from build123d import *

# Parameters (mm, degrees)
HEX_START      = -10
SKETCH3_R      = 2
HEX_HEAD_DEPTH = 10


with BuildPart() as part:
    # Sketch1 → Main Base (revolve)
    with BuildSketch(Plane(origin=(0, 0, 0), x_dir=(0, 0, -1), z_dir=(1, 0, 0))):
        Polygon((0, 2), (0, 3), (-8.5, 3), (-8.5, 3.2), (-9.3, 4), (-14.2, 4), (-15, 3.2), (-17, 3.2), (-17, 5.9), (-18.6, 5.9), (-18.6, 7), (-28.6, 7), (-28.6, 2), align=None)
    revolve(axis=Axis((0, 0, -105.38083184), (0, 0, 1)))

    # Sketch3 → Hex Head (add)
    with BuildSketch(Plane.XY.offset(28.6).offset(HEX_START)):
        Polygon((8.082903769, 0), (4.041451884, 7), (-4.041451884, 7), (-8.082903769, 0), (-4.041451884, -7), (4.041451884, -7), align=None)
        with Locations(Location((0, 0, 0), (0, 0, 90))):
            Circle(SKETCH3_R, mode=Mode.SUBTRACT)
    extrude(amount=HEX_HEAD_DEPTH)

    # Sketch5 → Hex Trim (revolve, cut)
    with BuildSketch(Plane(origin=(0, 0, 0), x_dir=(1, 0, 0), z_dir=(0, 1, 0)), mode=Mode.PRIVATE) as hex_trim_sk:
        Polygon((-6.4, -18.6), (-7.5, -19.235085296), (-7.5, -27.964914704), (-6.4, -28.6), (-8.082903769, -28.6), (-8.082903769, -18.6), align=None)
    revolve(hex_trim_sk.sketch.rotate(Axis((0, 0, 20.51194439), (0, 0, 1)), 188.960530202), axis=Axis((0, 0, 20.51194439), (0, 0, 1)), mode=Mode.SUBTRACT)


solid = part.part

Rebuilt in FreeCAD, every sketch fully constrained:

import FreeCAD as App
import Part
import Sketcher

V = App.Vector
Q = App.Units.Quantity

doc = App.newDocument("Part")
body = doc.addObject("PartDesign::Body", "Body")

# Sketch on YZ plane
sketch1 = body.newObject("Sketcher::SketchObject", "Sketch")
sketch1.AttachmentSupport = (doc.getObject("YZ_Plane"), [""])
sketch1.MapMode = "FlatFace"
sketch1.addGeometry(Part.LineSegment(V(2, 0, 0), V(3, 0, 0)), False)
sketch1.addGeometry(Part.LineSegment(V(3, 0, 0), V(3, 8.5, 0)), False)
sketch1.addGeometry(Part.LineSegment(V(3, 8.5, 0), V(3.2, 8.5, 0)), False)
sketch1.addGeometry(Part.LineSegment(V(3.2, 8.5, 0), V(4, 9.3, 0)), False)
sketch1.addGeometry(Part.LineSegment(V(4, 9.3, 0), V(4, 14.2, 0)), False)
sketch1.addGeometry(Part.LineSegment(V(4, 14.2, 0), V(3.2, 15, 0)), False)
sketch1.addGeometry(Part.LineSegment(V(3.2, 15, 0), V(3.2, 17, 0)), False)
sketch1.addGeometry(Part.LineSegment(V(3.2, 17, 0), V(5.9, 17, 0)), False)
sketch1.addGeometry(Part.LineSegment(V(5.9, 17, 0), V(5.9, 18.6, 0)), False)
sketch1.addGeometry(Part.LineSegment(V(5.9, 18.6, 0), V(7, 18.6, 0)), False)
sketch1.addGeometry(Part.LineSegment(V(7, 18.6, 0), V(7, 28.6, 0)), False)
sketch1.addGeometry(Part.LineSegment(V(7, 28.6, 0), V(2, 28.6, 0)), False)
sketch1.addGeometry(Part.LineSegment(V(2, 28.6, 0), V(2, 0, 0)), False)
sketch1.addConstraint(Sketcher.Constraint("Coincident", 0, 2, 1, 1))
sketch1.addConstraint(Sketcher.Constraint("Coincident", 1, 2, 2, 1))
sketch1.addConstraint(Sketcher.Constraint("Coincident", 2, 2, 3, 1))
sketch1.addConstraint(Sketcher.Constraint("Coincident", 3, 2, 4, 1))
sketch1.addConstraint(Sketcher.Constraint("Coincident", 4, 2, 5, 1))
sketch1.addConstraint(Sketcher.Constraint("Coincident", 5, 2, 6, 1))
sketch1.addConstraint(Sketcher.Constraint("Coincident", 6, 2, 7, 1))
sketch1.addConstraint(Sketcher.Constraint("Coincident", 7, 2, 8, 1))
sketch1.addConstraint(Sketcher.Constraint("Coincident", 8, 2, 9, 1))
sketch1.addConstraint(Sketcher.Constraint("Coincident", 9, 2, 10, 1))
sketch1.addConstraint(Sketcher.Constraint("Coincident", 10, 2, 11, 1))
sketch1.addConstraint(Sketcher.Constraint("Coincident", 11, 2, 12, 1))
sketch1.addConstraint(Sketcher.Constraint("Coincident", 12, 2, 0, 1))
sketch1.addConstraint(Sketcher.Constraint("Horizontal", 0))
sketch1.addConstraint(Sketcher.Constraint("Vertical", 1))
sketch1.addConstraint(Sketcher.Constraint("Horizontal", 2))
sketch1.addConstraint(Sketcher.Constraint("Vertical", 4))
sketch1.addConstraint(Sketcher.Constraint("Vertical", 6))
sketch1.addConstraint(Sketcher.Constraint("Horizontal", 7))
sketch1.addConstraint(Sketcher.Constraint("Vertical", 8))
sketch1.addConstraint(Sketcher.Constraint("Horizontal", 9))
sketch1.addConstraint(Sketcher.Constraint("Vertical", 10))
sketch1.addConstraint(Sketcher.Constraint("Horizontal", 11))
sketch1.addConstraint(Sketcher.Constraint("Vertical", 12))
sketch1.addConstraint(Sketcher.Constraint("PointOnObject", 0, 2, -1))
sketch1.addConstraint(Sketcher.Constraint("Perpendicular", 3, 5))
sketch1.addConstraint(Sketcher.Constraint("Vertical", 2, 2, 5, 2))
sketch1.addConstraint(Sketcher.Constraint("Equal", 3, 5))
sketch1.addConstraint(Sketcher.Constraint("DistanceX", 0, 1, 0, 2, Q("1 mm")))
sketch1.addConstraint(Sketcher.Constraint("DistanceX", 11, 2, 11, 1, Q("5 mm")))
sketch1.addConstraint(Sketcher.Constraint("DistanceY", 6, 1, 6, 2, Q("2 mm")))
sketch1.addConstraint(Sketcher.Constraint("DistanceY", 10, 1, 10, 2, Q("10 mm")))
sketch1.addConstraint(Sketcher.Constraint("DistanceX", 2, 1, 2, 2, Q("0.2 mm")))
sketch1.addConstraint(Sketcher.Constraint("DistanceX", 7, 1, 7, 2, Q("2.7 mm")))
sketch1.addConstraint(Sketcher.Constraint("DistanceY", 1, 1, 1, 2, Q("8.5 mm")))
sketch1.addConstraint(Sketcher.Constraint("DistanceY", 4, 1, 4, 2, Q("4.9 mm")))
sketch1.addConstraint(Sketcher.Constraint("DistanceY", 8, 1, 8, 2, Q("1.6 mm")))
sketch1.addConstraint(Sketcher.Constraint("DistanceY", 12, 2, 12, 1, Q("28.6 mm")))
sketch1.addConstraint(Sketcher.Constraint("DistanceX", -1, 1, 0, 2, Q("3 mm")))
revolution = body.newObject("PartDesign::Revolution", "Revolution")
revolution.Profile = sketch1
revolution.ReferenceAxis = (sketch1, ["V_Axis"])
revolution.Angle = 360

# Sketch on XY plane
sketch2 = body.newObject("Sketcher::SketchObject", "Sketch001")
sketch2.AttachmentSupport = (doc.getObject("XY_Plane"), [""])
sketch2.MapMode = "FlatFace"
sketch2.AttachmentOffset = App.Placement(V(0, 0, 18.6), App.Rotation())
sketch2.addGeometry(Part.LineSegment(V(8.1, 0, 0), V(4, 7, 0)), False)
sketch2.addGeometry(Part.LineSegment(V(4, 7, 0), V(-4, 7, 0)), False)
sketch2.addGeometry(Part.LineSegment(V(-4, 7, 0), V(-8.1, 0, 0)), False)
sketch2.addGeometry(Part.LineSegment(V(-8.1, 0, 0), V(-4, -7, 0)), False)
sketch2.addGeometry(Part.LineSegment(V(-4, -7, 0), V(4, -7, 0)), False)
sketch2.addGeometry(Part.LineSegment(V(4, -7, 0), V(8.1, 0, 0)), False)
sketch2.addGeometry(Part.Circle(V(0, 0, 0), V(0, 0, 1), 2), False)
sketch2.addConstraint(Sketcher.Constraint("Coincident", 0, 2, 1, 1))
sketch2.addConstraint(Sketcher.Constraint("Coincident", 1, 2, 2, 1))
sketch2.addConstraint(Sketcher.Constraint("Coincident", 2, 2, 3, 1))
sketch2.addConstraint(Sketcher.Constraint("Coincident", 3, 2, 4, 1))
sketch2.addConstraint(Sketcher.Constraint("Coincident", 4, 2, 5, 1))
sketch2.addConstraint(Sketcher.Constraint("Coincident", 5, 2, 0, 1))
sketch2.addConstraint(Sketcher.Constraint("Horizontal", 1))
sketch2.addConstraint(Sketcher.Constraint("Horizontal", 4))
sketch2.addConstraint(Sketcher.Constraint("Coincident", 6, 3, -1, 1))
sketch2.addConstraint(Sketcher.Constraint("Symmetric", 0, 2, 3, 2, -1, 1))
sketch2.addConstraint(Sketcher.Constraint("Symmetric", 2, 2, 5, 2, -1, 1))
sketch2.addConstraint(Sketcher.Constraint("PointOnObject", 2, 2, -1))
sketch2.addConstraint(Sketcher.Constraint("Parallel", 2, 5))
sketch2.addConstraint(Sketcher.Constraint("Vertical", 1, 2, 3, 2))
sketch2.addConstraint(Sketcher.Constraint("Diameter", 6, Q("4 mm")))
sketch2.addConstraint(Sketcher.Constraint("Angle", 0, Q("120 deg")))
sketch2.addConstraint(Sketcher.Constraint("DistanceY", -1, 1, 0, 2, Q("7 mm")))
sketch2.addConstraint(Sketcher.Constraint("DistanceX", 1, 2, 1, 1, Q("8.082904 mm")))
pad1 = body.newObject("PartDesign::Pad", "Pad")
pad1.Profile = sketch2
pad1.Length = 10

# Sketch on XZ plane
sketch3 = body.newObject("Sketcher::SketchObject", "Sketch002")
sketch3.AttachmentSupport = (doc.getObject("XZ_Plane"), [""])
sketch3.MapMode = "FlatFace"
sketch3.addGeometry(Part.LineSegment(V(-7.5, 19.2, 0), V(-6.4, 18.6, 0)), False)
sketch3.addGeometry(Part.LineSegment(V(-6.4, 18.6, 0), V(-8.1, 18.6, 0)), False)
sketch3.addGeometry(Part.LineSegment(V(-8.1, 18.6, 0), V(-8.1, 28.6, 0)), False)
sketch3.addGeometry(Part.LineSegment(V(-8.1, 28.6, 0), V(-6.4, 28.6, 0)), False)
sketch3.addGeometry(Part.LineSegment(V(-6.4, 28.6, 0), V(-7.5, 28, 0)), False)
sketch3.addGeometry(Part.LineSegment(V(-7.5, 28, 0), V(-7.5, 19.2, 0)), False)
sketch3.addConstraint(Sketcher.Constraint("Coincident", 0, 2, 1, 1))
sketch3.addConstraint(Sketcher.Constraint("Coincident", 1, 2, 2, 1))
sketch3.addConstraint(Sketcher.Constraint("Coincident", 2, 2, 3, 1))
sketch3.addConstraint(Sketcher.Constraint("Coincident", 3, 2, 4, 1))
sketch3.addConstraint(Sketcher.Constraint("Coincident", 4, 2, 5, 1))
sketch3.addConstraint(Sketcher.Constraint("Coincident", 5, 2, 0, 1))
sketch3.addConstraint(Sketcher.Constraint("Horizontal", 1))
sketch3.addConstraint(Sketcher.Constraint("Vertical", 2))
sketch3.addConstraint(Sketcher.Constraint("Horizontal", 3))
sketch3.addConstraint(Sketcher.Constraint("Vertical", 5))
sketch3.addConstraint(Sketcher.Constraint("Vertical", 0, 2, 3, 2))
sketch3.addConstraint(Sketcher.Constraint("Equal", 0, 4))
sketch3.addConstraint(Sketcher.Constraint("DistanceY", 2, 1, 2, 2, Q("10 mm")))
sketch3.addConstraint(Sketcher.Constraint("Angle", 0, Q("-30 deg")))
sketch3.addConstraint(Sketcher.Constraint("DistanceX", 0, 2, -1, 1, Q("6.4 mm")))
sketch3.addConstraint(Sketcher.Constraint("DistanceY", -1, 1, 0, 2, Q("18.6 mm")))
sketch3.addConstraint(Sketcher.Constraint("DistanceX", 4, 2, -1, 1, Q("7.5 mm")))
sketch3.addConstraint(Sketcher.Constraint("DistanceX", 1, 2, 1, 1, Q("1.682904 mm")))
groove = body.newObject("PartDesign::Groove", "Groove")
groove.Profile = sketch3
groove.ReferenceAxis = (sketch3, ["V_Axis"])
groove.Angle = 360

doc.recompute()
